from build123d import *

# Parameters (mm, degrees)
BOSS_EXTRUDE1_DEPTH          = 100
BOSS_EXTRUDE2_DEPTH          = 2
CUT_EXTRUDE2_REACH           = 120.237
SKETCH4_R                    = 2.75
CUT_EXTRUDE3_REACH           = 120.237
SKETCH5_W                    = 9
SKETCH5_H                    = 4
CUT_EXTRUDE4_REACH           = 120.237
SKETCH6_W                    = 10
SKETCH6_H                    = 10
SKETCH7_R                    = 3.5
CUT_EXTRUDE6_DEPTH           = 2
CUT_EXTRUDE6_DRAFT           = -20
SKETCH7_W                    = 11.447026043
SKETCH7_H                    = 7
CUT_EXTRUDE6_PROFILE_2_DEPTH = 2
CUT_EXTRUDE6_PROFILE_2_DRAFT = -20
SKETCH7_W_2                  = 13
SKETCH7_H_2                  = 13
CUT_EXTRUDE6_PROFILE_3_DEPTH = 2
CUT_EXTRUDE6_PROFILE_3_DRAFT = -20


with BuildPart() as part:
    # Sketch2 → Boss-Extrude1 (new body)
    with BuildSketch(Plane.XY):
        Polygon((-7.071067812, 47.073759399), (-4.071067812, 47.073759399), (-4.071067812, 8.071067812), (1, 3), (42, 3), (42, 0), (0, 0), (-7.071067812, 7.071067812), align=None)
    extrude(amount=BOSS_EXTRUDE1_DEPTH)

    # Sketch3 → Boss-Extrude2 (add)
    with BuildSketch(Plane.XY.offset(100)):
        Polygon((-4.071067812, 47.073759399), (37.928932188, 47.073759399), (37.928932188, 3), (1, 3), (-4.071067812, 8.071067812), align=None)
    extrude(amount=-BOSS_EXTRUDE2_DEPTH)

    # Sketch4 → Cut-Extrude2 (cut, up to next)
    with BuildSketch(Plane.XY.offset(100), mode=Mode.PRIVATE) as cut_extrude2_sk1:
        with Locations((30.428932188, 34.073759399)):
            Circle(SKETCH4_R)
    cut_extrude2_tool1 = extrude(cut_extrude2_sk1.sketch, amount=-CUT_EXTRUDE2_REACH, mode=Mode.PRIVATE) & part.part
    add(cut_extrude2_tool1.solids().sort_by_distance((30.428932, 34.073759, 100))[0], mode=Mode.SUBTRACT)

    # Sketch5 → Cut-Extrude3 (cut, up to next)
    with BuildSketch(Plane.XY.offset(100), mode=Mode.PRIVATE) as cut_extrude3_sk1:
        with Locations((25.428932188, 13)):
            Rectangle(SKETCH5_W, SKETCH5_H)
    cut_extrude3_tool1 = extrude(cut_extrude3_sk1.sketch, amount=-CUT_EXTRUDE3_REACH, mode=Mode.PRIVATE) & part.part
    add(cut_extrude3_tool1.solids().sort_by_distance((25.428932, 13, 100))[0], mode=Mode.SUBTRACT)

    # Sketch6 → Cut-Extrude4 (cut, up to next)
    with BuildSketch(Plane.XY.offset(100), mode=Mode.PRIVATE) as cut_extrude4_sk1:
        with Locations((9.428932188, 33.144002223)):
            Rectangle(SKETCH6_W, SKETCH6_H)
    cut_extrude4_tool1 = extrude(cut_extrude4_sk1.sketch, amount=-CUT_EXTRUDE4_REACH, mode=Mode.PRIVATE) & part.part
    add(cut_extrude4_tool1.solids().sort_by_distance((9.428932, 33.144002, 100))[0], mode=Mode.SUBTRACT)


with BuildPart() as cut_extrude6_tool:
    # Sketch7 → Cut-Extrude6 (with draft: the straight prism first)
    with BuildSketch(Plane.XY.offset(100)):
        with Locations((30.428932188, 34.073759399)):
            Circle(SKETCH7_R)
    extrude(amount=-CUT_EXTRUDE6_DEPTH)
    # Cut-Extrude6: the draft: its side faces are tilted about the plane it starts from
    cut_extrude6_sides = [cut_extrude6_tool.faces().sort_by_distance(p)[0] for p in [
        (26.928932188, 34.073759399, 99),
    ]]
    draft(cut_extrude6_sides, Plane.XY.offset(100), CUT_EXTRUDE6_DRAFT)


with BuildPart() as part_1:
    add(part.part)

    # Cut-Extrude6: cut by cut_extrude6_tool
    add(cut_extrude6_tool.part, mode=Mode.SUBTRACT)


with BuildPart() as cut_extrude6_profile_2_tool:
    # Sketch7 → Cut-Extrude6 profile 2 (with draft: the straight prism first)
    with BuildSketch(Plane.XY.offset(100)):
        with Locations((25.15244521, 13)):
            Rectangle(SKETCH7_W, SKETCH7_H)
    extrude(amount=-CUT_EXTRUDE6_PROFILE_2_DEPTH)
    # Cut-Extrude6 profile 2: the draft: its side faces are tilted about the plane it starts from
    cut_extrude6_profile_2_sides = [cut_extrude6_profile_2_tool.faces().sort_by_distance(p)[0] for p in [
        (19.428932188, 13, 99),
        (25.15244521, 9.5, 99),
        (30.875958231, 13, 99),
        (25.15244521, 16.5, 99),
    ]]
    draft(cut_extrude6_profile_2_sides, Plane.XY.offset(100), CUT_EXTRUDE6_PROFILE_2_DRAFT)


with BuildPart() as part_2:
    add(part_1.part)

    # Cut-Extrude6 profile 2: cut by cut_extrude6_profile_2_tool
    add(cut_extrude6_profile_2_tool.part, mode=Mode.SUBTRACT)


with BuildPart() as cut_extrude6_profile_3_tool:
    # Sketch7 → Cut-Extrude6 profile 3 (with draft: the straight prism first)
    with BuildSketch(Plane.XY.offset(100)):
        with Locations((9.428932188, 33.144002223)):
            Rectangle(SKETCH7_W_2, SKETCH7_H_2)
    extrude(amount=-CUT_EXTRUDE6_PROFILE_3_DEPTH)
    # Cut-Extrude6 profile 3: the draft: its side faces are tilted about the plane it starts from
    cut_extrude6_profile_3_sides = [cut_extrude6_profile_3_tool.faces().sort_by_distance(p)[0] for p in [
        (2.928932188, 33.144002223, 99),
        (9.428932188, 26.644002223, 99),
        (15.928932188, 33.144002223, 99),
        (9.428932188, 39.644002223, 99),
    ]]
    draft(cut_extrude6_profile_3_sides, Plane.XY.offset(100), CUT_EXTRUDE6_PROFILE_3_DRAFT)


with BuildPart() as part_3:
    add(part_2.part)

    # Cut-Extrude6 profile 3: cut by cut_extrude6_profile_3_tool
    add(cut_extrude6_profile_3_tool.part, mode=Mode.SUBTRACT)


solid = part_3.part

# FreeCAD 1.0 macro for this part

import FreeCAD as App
import Part
import Sketcher
from FreeCAD import Vector
Q = App.Units.Quantity


def faces_at(feature, points):
    """Names of the faces that lie closest to the given points."""
    faces = feature.Shape.Faces
    near = lambda p: min(range(len(faces)), key=lambda i: faces[i].distToShape(Part.Vertex(*p))[0])
    return sorted({f"Face{near(p) + 1}" for p in points})


def add_polygon(sketch, points):
    """Adds a closed chain of lines whose ends are joined by coincident constraints."""
    first, n = sketch.GeometryCount, len(points)
    for a, b in zip(points, points[1:] + points[:1]):
        sketch.addGeometry(Part.LineSegment(App.Vector(*a, 0), App.Vector(*b, 0)), False)
    for i in range(n):
        sketch.addConstraint(Sketcher.Constraint("Coincident", first + i, 2, first + (i + 1) % n, 1))

doc = App.newDocument("Part")
body = doc.addObject("PartDesign::Body", "Body")

sketch1 = doc.addObject("Sketcher::SketchObject", "Sketch")
body.addObject(sketch1)
sketch1.AttachmentSupport = (doc.XY_Plane, [""])
sketch1.MapMode = "FlatFace"
add_polygon(sketch1, [(-4.1, 47.1), (-7.1, 47.1), (-7.1, 7.1), (0, 0), (42, 0), (42, 3), (1, 3), (-4.1, 8.1)])
sketch1.addConstraint([
    Sketcher.Constraint("Horizontal", 0),
    Sketcher.Constraint("Vertical", 1),
    Sketcher.Constraint("Horizontal", 3),
    Sketcher.Constraint("Vertical", 4),
    Sketcher.Constraint("Horizontal", 5),
    Sketcher.Constraint("Vertical", 7),
    Sketcher.Constraint("Coincident", 2, 2, -1, 1),
    Sketcher.Constraint("Parallel", 2, 6),
    Sketcher.Constraint("Equal", 0, 4),
    Sketcher.Constraint("DistanceX", 0, 2, 0, 1, Q("3 mm")),
    Sketcher.Constraint("DistanceX", 3, 1, 3, 2, Q("42 mm")),
    Sketcher.Constraint("DistanceX", 5, 2, 5, 1, Q("41 mm")),
    Sketcher.Constraint("Angle", 2, Q("-45 deg")),
    Sketcher.Constraint("Distance", 2, Q("10 mm")),
    Sketcher.Constraint("DistanceY", 1, 2, 1, 1, Q("40.002692 mm")),
])
pad1 = doc.addObject("PartDesign::Pad", "Pad")
body.addObject(pad1)
pad1.Profile = sketch1
pad1.Length = 100

sketch2 = doc.addObject("Sketcher::SketchObject", "Sketch001")
body.addObject(sketch2)
sketch2.AttachmentSupport = (doc.XY_Plane, [""])
sketch2.MapMode = "FlatFace"
sketch2.AttachmentOffset = App.Placement(Vector(0, 0, 100), App.Rotation())
add_polygon(sketch2, [(38, 47), (-4, 47), (-4, 8), (1, 3), (38, 3)])
sketch2.addConstraint([
    Sketcher.Constraint("Horizontal", 0),
    Sketcher.Constraint("Vertical", 1),
    Sketcher.Constraint("Horizontal", 3),
    Sketcher.Constraint("Vertical", 4),
    Sketcher.Constraint("DistanceX", 0, 2, 0, 1, Q("42 mm")),
    Sketcher.Constraint("Angle", 2, Q("-45 deg")),
    Sketcher.Constraint("DistanceX", -1, 1, 2, 2, Q("1 mm")),
    Sketcher.Constraint("DistanceY", -1, 1, 2, 2, Q("3 mm")),
    Sketcher.Constraint("DistanceY", 1, 2, 1, 1, Q("39.002692 mm")),
    Sketcher.Constraint("DistanceY", 4, 1, 4, 2, Q("44.073759 mm")),
])
pad2 = doc.addObject("PartDesign::Pad", "Pad001")
body.addObject(pad2)
pad2.Profile = sketch2
pad2.Length = 2
pad2.Reversed = True

sketch3 = doc.addObject("Sketcher::SketchObject", "Sketch002")
body.addObject(sketch3)
sketch3.AttachmentSupport = (doc.XY_Plane, [""])
sketch3.MapMode = "FlatFace"
sketch3.AttachmentOffset = App.Placement(Vector(0, 0, 100), App.Rotation())
sketch3.addGeometry(Part.Circle(Vector(30.4, 34.1, 0), Vector(0, 0, 1), 2.8), False)
sketch3.addConstraint([
    Sketcher.Constraint("Diameter", 0, Q("5.5 mm")),
    Sketcher.Constraint("DistanceY", -1, 1, 0, 3, Q("34.073759 mm")),
    Sketcher.Constraint("DistanceX", -1, 1, 0, 3, Q("30.428932 mm")),
])
pocket1 = doc.addObject("PartDesign::Pocket", "Pocket")
body.addObject(pocket1)
pocket1.Profile = sketch3
pocket1.Type = "UpToFirst"

sketch4 = doc.addObject("Sketcher::SketchObject", "Sketch003")
body.addObject(sketch4)
sketch4.AttachmentSupport = (doc.XY_Plane, [""])
sketch4.MapMode = "FlatFace"
sketch4.AttachmentOffset = App.Placement(Vector(0, 0, 100), App.Rotation())
add_polygon(sketch4, [(20.9, 15), (20.9, 11), (29.9, 11), (29.9, 15)])
sketch4.addConstraint([
    Sketcher.Constraint("Vertical", 0),
    Sketcher.Constraint("Horizontal", 1),
    Sketcher.Constraint("Vertical", 2),
    Sketcher.Constraint("Horizontal", 3),
    Sketcher.Constraint("DistanceX", 1, 1, 1, 2, Q("9 mm")),
    Sketcher.Constraint("DistanceY", 0, 2, 0, 1, Q("4 mm")),
    Sketcher.Constraint("DistanceY", -1, 1, 0, 2, Q("11 mm")),
    Sketcher.Constraint("DistanceX", -1, 1, 0, 2, Q("20.928932 mm")),
])
pocket2 = doc.addObject("PartDesign::Pocket", "Pocket001")
body.addObject(pocket2)
pocket2.Profile = sketch4
pocket2.Type = "UpToFirst"

sketch5 = doc.addObject("Sketcher::SketchObject", "Sketch004")
body.addObject(sketch5)
sketch5.AttachmentSupport = (doc.XY_Plane, [""])
sketch5.MapMode = "FlatFace"
sketch5.AttachmentOffset = App.Placement(Vector(0, 0, 100), App.Rotation())
add_polygon(sketch5, [(4, 38), (4, 28), (14, 28), (14, 38)])
sketch5.addConstraint([
    Sketcher.Constraint("Vertical", 0),
    Sketcher.Constraint("Horizontal", 1),
    Sketcher.Constraint("Vertical", 2),
    Sketcher.Constraint("Horizontal", 3),
    Sketcher.Constraint("Equal", 3, 0),
    Sketcher.Constraint("DistanceX", 1, 1, 1, 2, Q("10 mm")),
    Sketcher.Constraint("DistanceX", -1, 1, 0, 2, Q("4.428932 mm")),
    Sketcher.Constraint("DistanceY", -1, 1, 0, 2, Q("28.144002 mm")),
])
pocket3 = doc.addObject("PartDesign::Pocket", "Pocket002")
body.addObject(pocket3)
pocket3.Profile = sketch5
pocket3.Type = "UpToFirst"
body2 = doc.addObject("PartDesign::Body", "Body001")

sketch6 = doc.addObject("Sketcher::SketchObject", "Sketch005")
body2.addObject(sketch6)
sketch6.AttachmentSupport = (doc.getObject("XY_Plane001"), [""])
sketch6.MapMode = "FlatFace"
sketch6.AttachmentOffset = App.Placement(Vector(0, 0, 100), App.Rotation())
sketch6.addGeometry(Part.Circle(Vector(30.4, 34.1, 0), Vector(0, 0, 1), 3.5), False)
sketch6.addConstraint([
    Sketcher.Constraint("Diameter", 0, Q("7 mm")),
    Sketcher.Constraint("DistanceY", -1, 1, 0, 3, Q("34.073759 mm")),
    Sketcher.Constraint("DistanceX", -1, 1, 0, 3, Q("30.428932 mm")),
])
pad3 = doc.addObject("PartDesign::Pad", "Pad002")
body2.addObject(pad3)
pad3.Profile = sketch6
pad3.Length = 2
pad3.Reversed = True
doc.recompute()

datumplane = doc.addObject("PartDesign::Plane", "DatumPlane")
body2.addObject(datumplane)
datumplane.AttachmentSupport = (doc.getObject("XY_Plane001"), [""])
datumplane.MapMode = "FlatFace"
datumplane.AttachmentOffset = App.Placement(Vector(0, 0, 100), App.Rotation())
draft = doc.addObject("PartDesign::Draft", "Draft")
body2.addObject(draft)
draft.Base = (pad3, faces_at(pad3, [(26.929, 34.074, 99)]))
draft.NeutralPlane = (datumplane, [""])
draft.Angle = 20
draft.Reversed = True
doc.recompute()

boolean = doc.addObject("PartDesign::Boolean", "Boolean")
body.addObject(boolean)
boolean.Type = "Cut"
boolean.addObjects([body2])
body3 = doc.addObject("PartDesign::Body", "Body002")

sketch7 = doc.addObject("Sketcher::SketchObject", "Sketch006")
body3.addObject(sketch7)
sketch7.AttachmentSupport = (doc.getObject("XY_Plane002"), [""])
sketch7.MapMode = "FlatFace"
sketch7.AttachmentOffset = App.Placement(Vector(0, 0, 100), App.Rotation())
add_polygon(sketch7, [(19, 16), (19, 10), (31, 10), (31, 16)])
sketch7.addConstraint([
    Sketcher.Constraint("Vertical", 0),
    Sketcher.Constraint("Horizontal", 1),
    Sketcher.Constraint("Vertical", 2),
    Sketcher.Constraint("Horizontal", 3),
    Sketcher.Constraint("DistanceY", 0, 2, 0, 1, Q("7 mm")),
    Sketcher.Constraint("DistanceY", -1, 1, 0, 2, Q("9.5 mm")),
    Sketcher.Constraint("DistanceX", 1, 1, 1, 2, Q("11.447026 mm")),
    Sketcher.Constraint("DistanceX", -1, 1, 1, 2, Q("30.875958 mm")),
])
pad4 = doc.addObject("PartDesign::Pad", "Pad003")
body3.addObject(pad4)
pad4.Profile = sketch7
pad4.Length = 2
pad4.Reversed = True
doc.recompute()

datumplane2 = doc.addObject("PartDesign::Plane", "DatumPlane001")
body3.addObject(datumplane2)
datumplane2.AttachmentSupport = (doc.getObject("XY_Plane002"), [""])
datumplane2.MapMode = "FlatFace"
datumplane2.AttachmentOffset = App.Placement(Vector(0, 0, 100), App.Rotation())
draft2 = doc.addObject("PartDesign::Draft", "Draft001")
body3.addObject(draft2)
draft2.Base = (pad4, faces_at(pad4, [
    (19.429, 13, 99),
    (25.152, 9.5, 99),
    (30.876, 13, 99),
    (25.152, 16.5, 99),
]))
draft2.NeutralPlane = (datumplane2, [""])
draft2.Angle = 20
draft2.Reversed = True
doc.recompute()

boolean2 = doc.addObject("PartDesign::Boolean", "Boolean001")
body.addObject(boolean2)
boolean2.Type = "Cut"
boolean2.addObjects([body3])
body4 = doc.addObject("PartDesign::Body", "Body003")

sketch8 = doc.addObject("Sketcher::SketchObject", "Sketch007")
body4.addObject(sketch8)
sketch8.AttachmentSupport = (doc.getObject("XY_Plane003"), [""])
sketch8.MapMode = "FlatFace"
sketch8.AttachmentOffset = App.Placement(Vector(0, 0, 100), App.Rotation())
add_polygon(sketch8, [(3, 40), (3, 27), (16, 27), (16, 40)])
sketch8.addConstraint([
    Sketcher.Constraint("Vertical", 0),
    Sketcher.Constraint("Horizontal", 1),
    Sketcher.Constraint("Vertical", 2),
    Sketcher.Constraint("Horizontal", 3),
    Sketcher.Constraint("Equal", 3, 0),
    Sketcher.Constraint("DistanceX", 1, 1, 1, 2, Q("13 mm")),
    Sketcher.Constraint("DistanceX", -1, 1, 0, 2, Q("2.928932 mm")),
    Sketcher.Constraint("DistanceY", -1, 1, 0, 2, Q("26.644002 mm")),
])
pad5 = doc.addObject("PartDesign::Pad", "Pad004")
body4.addObject(pad5)
pad5.Profile = sketch8
pad5.Length = 2
pad5.Reversed = True
doc.recompute()

datumplane3 = doc.addObject("PartDesign::Plane", "DatumPlane002")
body4.addObject(datumplane3)
datumplane3.AttachmentSupport = (doc.getObject("XY_Plane003"), [""])
datumplane3.MapMode = "FlatFace"
datumplane3.AttachmentOffset = App.Placement(Vector(0, 0, 100), App.Rotation())
draft3 = doc.addObject("PartDesign::Draft", "Draft002")
body4.addObject(draft3)
draft3.Base = (pad5, faces_at(pad5, [
    (2.929, 33.144, 99),
    (9.429, 26.644, 99),
    (15.929, 33.144, 99),
    (9.429, 39.644, 99),
]))
draft3.NeutralPlane = (datumplane3, [""])
draft3.Angle = 20
draft3.Reversed = True
doc.recompute()

boolean3 = doc.addObject("PartDesign::Boolean", "Boolean002")
body.addObject(boolean3)
boolean3.Type = "Cut"
boolean3.addObjects([body4])

doc.recompute()
